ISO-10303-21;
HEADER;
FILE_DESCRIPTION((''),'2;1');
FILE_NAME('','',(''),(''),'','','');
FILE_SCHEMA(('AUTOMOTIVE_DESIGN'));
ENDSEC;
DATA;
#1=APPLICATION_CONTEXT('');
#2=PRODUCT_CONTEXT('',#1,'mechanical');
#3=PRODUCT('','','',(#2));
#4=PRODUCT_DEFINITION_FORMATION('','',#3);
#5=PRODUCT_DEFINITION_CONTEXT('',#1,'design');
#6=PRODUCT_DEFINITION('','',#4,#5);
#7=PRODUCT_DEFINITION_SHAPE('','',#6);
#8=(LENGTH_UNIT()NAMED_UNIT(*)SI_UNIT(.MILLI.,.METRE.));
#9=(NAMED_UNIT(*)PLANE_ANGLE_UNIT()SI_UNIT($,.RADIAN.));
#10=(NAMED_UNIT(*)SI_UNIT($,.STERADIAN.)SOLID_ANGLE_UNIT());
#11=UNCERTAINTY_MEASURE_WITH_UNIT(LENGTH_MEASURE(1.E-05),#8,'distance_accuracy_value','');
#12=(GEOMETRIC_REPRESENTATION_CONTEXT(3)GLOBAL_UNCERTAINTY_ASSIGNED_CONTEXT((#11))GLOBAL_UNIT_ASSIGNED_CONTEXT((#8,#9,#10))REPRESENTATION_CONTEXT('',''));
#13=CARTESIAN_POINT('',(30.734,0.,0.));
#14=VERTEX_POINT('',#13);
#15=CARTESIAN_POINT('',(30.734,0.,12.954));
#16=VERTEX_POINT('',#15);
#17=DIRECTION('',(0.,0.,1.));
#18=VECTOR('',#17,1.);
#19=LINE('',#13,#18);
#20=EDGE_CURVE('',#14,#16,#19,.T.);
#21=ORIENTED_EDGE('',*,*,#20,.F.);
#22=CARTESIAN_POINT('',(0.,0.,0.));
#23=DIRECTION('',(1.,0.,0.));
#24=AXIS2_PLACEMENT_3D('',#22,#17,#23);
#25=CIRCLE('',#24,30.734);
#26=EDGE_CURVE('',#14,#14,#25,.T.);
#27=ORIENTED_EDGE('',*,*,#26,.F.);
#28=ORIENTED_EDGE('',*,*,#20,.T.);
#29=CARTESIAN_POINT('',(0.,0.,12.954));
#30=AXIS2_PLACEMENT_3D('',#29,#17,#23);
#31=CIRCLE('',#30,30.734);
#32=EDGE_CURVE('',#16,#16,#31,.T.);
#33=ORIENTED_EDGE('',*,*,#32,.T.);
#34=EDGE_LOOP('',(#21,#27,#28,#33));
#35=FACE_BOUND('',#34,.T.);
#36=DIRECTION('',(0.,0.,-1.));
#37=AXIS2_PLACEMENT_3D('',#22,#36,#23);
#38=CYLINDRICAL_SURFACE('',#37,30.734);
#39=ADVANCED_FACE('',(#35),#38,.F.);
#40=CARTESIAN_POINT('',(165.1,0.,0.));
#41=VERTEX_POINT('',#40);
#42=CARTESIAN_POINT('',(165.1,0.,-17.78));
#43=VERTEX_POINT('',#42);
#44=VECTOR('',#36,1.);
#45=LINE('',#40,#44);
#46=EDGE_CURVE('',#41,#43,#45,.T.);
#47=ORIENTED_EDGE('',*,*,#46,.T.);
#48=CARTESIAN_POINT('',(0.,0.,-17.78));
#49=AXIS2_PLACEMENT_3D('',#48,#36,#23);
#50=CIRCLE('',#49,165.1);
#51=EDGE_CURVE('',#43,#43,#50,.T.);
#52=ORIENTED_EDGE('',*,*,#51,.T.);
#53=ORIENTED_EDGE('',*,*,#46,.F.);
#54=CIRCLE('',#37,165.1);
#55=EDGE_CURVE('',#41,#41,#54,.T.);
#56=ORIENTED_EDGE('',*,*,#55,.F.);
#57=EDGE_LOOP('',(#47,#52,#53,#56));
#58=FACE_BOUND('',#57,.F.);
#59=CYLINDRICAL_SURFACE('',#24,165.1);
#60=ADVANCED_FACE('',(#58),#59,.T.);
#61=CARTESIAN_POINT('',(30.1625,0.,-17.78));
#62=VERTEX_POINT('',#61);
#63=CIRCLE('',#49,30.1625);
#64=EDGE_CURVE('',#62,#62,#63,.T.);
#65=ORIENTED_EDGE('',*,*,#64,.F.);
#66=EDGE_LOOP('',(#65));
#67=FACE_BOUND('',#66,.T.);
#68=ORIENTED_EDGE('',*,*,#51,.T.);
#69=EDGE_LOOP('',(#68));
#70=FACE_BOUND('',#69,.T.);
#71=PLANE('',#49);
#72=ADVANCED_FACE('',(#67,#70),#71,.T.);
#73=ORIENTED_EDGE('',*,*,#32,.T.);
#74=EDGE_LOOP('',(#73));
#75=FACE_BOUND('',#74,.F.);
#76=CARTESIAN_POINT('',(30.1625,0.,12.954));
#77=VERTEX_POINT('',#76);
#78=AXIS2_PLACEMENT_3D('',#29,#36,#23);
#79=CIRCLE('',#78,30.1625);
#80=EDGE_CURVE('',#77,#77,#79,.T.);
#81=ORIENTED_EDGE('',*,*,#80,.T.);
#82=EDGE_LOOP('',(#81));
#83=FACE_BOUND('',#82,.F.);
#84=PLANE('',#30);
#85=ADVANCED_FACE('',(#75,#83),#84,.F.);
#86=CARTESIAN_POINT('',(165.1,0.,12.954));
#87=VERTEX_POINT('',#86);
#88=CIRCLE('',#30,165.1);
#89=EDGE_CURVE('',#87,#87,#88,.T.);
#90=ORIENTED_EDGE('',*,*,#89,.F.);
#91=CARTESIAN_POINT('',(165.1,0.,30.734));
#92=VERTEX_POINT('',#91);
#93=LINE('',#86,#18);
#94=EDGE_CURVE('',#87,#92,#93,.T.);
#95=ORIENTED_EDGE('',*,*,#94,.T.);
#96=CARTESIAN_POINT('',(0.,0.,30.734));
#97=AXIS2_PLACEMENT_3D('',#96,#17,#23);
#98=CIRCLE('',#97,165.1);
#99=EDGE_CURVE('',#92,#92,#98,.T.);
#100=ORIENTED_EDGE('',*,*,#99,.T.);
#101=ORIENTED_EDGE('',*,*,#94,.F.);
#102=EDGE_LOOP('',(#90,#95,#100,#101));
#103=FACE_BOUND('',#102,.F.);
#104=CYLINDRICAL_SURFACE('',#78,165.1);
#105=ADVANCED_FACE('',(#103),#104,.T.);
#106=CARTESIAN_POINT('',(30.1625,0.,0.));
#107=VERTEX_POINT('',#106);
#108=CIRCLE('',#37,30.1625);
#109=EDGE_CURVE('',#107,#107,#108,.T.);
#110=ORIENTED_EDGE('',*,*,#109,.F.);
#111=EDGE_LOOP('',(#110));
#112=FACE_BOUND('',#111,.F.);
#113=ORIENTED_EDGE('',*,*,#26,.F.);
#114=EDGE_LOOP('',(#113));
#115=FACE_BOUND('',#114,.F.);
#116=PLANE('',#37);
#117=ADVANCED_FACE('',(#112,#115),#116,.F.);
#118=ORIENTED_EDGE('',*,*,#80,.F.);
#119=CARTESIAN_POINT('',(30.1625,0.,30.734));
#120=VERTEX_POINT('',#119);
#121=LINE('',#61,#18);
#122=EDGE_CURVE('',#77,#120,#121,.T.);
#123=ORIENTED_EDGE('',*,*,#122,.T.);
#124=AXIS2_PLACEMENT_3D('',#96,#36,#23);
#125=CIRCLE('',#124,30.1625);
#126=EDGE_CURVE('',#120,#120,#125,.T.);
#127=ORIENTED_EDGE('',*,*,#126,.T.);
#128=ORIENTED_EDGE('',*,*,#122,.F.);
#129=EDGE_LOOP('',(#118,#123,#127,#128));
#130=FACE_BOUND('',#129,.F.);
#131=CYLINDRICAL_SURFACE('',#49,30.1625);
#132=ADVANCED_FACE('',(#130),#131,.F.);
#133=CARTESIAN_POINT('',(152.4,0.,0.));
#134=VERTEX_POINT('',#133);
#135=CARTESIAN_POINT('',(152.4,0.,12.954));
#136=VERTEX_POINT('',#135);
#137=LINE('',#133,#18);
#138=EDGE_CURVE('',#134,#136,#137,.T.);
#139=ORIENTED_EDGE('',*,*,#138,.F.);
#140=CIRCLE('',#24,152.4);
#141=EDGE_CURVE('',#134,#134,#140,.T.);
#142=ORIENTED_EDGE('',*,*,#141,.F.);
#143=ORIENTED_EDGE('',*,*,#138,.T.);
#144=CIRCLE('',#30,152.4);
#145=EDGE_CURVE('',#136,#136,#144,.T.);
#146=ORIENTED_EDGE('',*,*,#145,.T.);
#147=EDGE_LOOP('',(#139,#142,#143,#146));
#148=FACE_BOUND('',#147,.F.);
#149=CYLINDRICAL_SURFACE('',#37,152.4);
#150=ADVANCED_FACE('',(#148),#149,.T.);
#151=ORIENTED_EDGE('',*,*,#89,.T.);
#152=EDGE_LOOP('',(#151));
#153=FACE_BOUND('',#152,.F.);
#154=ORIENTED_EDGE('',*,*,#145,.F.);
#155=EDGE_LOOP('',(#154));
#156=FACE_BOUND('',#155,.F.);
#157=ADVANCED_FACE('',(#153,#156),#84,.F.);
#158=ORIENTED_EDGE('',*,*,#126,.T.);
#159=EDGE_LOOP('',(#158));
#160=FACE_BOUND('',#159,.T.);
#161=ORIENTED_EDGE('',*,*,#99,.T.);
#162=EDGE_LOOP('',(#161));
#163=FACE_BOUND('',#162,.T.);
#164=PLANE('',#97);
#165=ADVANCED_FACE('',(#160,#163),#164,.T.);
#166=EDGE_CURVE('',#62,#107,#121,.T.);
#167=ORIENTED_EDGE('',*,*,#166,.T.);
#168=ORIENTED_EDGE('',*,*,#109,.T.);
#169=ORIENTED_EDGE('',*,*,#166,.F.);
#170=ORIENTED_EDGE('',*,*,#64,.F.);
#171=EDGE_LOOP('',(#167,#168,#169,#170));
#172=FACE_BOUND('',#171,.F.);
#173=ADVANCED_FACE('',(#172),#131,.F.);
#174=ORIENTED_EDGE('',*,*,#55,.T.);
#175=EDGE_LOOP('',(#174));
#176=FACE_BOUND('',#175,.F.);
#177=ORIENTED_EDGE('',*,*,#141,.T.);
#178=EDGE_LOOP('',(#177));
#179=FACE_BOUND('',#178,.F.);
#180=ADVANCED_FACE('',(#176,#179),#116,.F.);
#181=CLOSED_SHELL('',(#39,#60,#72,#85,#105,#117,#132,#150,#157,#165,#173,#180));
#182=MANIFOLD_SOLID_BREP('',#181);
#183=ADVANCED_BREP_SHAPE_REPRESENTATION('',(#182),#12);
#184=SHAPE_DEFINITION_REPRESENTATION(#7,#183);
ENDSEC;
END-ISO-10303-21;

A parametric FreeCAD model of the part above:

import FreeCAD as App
import Part
import Sketcher
Q = App.Units.Quantity

doc = App.newDocument("Part")
body = doc.addObject("PartDesign::Body", "Body")

sketch1 = body.newObject("Sketcher::SketchObject", "Sketch")
sketch1.AttachmentSupport = (doc.getObject("XY_Plane"), [""])
sketch1.MapMode = "FlatFace"
sketch1.addGeometry([
    Part.Circle(App.Vector(0, 0, 0), App.Vector(0, 0, 1), 152),
    Part.Circle(App.Vector(0, 0, 0), App.Vector(0, 0, 1), 31),
], False)
sketch1.addConstraint([
    Sketcher.Constraint("Coincident", 0, 3, -1, 1),
    Sketcher.Constraint("Coincident", 1, 3, -1, 1),
    Sketcher.Constraint("Diameter", 0, Q("12 in")),
    Sketcher.Constraint("Diameter", 1, Q("2.42 in")),
])
pad1 = body.newObject("PartDesign::Pad", "Pad")
pad1.Profile = sketch1
pad1.Length = Q("0.51 in")

sketch2 = body.newObject("Sketcher::SketchObject", "Sketch001")
sketch2.AttachmentSupport = (doc.getObject("XY_Plane"), [""])
sketch2.MapMode = "FlatFace"
sketch2.addGeometry(Part.Circle(App.Vector(0, 0, 0), App.Vector(0, 0, 1), 165), False)
sketch2.addConstraint([
    Sketcher.Constraint("Coincident", 0, 3, -1, 1),
    Sketcher.Constraint("Diameter", 0, Q("13 in")),
])
pad2 = body.newObject("PartDesign::Pad", "Pad001")
pad2.Profile = sketch2
pad2.Length = Q("0.7 in")
pad2.Reversed = True

sketch3 = body.newObject("Sketcher::SketchObject", "Sketch002")
sketch3.AttachmentSupport = (doc.getObject("XY_Plane"), [""])
sketch3.MapMode = "FlatFace"
sketch3.AttachmentOffset = App.Placement(App.Vector(0, 0, 0.51 * 25.4), App.Rotation())
sketch3.addGeometry(Part.Circle(App.Vector(0, 0, 0), App.Vector(0, 0, 1), 165), False)
sketch3.addConstraint([
    Sketcher.Constraint("Coincident", 0, 3, -1, 1),
    Sketcher.Constraint("Diameter", 0, Q("13 in")),
])
pad3 = body.newObject("PartDesign::Pad", "Pad002")
pad3.Profile = sketch3
pad3.Length = Q("0.7 in")

sketch4 = body.newObject("Sketcher::SketchObject", "Sketch003")
sketch4.AttachmentSupport = (doc.getObject("XY_Plane"), [""])
sketch4.MapMode = "FlatFace"
sketch4.AttachmentOffset = App.Placement(App.Vector(0, 0, -0.7 * 25.4), App.Rotation())
sketch4.addGeometry(Part.Circle(App.Vector(0, 0, 0), App.Vector(0, 0, 1), 30), False)
sketch4.addConstraint([
    Sketcher.Constraint("Coincident", 0, 3, -1, 1),
    Sketcher.Constraint("Diameter", 0, Q("2.375 in")),
])
pocket1 = body.newObject("PartDesign::Pocket", "Pocket")
pocket1.Profile = sketch4
pocket1.Length = 62.66538
pocket1.Reversed = True

doc.recompute()
